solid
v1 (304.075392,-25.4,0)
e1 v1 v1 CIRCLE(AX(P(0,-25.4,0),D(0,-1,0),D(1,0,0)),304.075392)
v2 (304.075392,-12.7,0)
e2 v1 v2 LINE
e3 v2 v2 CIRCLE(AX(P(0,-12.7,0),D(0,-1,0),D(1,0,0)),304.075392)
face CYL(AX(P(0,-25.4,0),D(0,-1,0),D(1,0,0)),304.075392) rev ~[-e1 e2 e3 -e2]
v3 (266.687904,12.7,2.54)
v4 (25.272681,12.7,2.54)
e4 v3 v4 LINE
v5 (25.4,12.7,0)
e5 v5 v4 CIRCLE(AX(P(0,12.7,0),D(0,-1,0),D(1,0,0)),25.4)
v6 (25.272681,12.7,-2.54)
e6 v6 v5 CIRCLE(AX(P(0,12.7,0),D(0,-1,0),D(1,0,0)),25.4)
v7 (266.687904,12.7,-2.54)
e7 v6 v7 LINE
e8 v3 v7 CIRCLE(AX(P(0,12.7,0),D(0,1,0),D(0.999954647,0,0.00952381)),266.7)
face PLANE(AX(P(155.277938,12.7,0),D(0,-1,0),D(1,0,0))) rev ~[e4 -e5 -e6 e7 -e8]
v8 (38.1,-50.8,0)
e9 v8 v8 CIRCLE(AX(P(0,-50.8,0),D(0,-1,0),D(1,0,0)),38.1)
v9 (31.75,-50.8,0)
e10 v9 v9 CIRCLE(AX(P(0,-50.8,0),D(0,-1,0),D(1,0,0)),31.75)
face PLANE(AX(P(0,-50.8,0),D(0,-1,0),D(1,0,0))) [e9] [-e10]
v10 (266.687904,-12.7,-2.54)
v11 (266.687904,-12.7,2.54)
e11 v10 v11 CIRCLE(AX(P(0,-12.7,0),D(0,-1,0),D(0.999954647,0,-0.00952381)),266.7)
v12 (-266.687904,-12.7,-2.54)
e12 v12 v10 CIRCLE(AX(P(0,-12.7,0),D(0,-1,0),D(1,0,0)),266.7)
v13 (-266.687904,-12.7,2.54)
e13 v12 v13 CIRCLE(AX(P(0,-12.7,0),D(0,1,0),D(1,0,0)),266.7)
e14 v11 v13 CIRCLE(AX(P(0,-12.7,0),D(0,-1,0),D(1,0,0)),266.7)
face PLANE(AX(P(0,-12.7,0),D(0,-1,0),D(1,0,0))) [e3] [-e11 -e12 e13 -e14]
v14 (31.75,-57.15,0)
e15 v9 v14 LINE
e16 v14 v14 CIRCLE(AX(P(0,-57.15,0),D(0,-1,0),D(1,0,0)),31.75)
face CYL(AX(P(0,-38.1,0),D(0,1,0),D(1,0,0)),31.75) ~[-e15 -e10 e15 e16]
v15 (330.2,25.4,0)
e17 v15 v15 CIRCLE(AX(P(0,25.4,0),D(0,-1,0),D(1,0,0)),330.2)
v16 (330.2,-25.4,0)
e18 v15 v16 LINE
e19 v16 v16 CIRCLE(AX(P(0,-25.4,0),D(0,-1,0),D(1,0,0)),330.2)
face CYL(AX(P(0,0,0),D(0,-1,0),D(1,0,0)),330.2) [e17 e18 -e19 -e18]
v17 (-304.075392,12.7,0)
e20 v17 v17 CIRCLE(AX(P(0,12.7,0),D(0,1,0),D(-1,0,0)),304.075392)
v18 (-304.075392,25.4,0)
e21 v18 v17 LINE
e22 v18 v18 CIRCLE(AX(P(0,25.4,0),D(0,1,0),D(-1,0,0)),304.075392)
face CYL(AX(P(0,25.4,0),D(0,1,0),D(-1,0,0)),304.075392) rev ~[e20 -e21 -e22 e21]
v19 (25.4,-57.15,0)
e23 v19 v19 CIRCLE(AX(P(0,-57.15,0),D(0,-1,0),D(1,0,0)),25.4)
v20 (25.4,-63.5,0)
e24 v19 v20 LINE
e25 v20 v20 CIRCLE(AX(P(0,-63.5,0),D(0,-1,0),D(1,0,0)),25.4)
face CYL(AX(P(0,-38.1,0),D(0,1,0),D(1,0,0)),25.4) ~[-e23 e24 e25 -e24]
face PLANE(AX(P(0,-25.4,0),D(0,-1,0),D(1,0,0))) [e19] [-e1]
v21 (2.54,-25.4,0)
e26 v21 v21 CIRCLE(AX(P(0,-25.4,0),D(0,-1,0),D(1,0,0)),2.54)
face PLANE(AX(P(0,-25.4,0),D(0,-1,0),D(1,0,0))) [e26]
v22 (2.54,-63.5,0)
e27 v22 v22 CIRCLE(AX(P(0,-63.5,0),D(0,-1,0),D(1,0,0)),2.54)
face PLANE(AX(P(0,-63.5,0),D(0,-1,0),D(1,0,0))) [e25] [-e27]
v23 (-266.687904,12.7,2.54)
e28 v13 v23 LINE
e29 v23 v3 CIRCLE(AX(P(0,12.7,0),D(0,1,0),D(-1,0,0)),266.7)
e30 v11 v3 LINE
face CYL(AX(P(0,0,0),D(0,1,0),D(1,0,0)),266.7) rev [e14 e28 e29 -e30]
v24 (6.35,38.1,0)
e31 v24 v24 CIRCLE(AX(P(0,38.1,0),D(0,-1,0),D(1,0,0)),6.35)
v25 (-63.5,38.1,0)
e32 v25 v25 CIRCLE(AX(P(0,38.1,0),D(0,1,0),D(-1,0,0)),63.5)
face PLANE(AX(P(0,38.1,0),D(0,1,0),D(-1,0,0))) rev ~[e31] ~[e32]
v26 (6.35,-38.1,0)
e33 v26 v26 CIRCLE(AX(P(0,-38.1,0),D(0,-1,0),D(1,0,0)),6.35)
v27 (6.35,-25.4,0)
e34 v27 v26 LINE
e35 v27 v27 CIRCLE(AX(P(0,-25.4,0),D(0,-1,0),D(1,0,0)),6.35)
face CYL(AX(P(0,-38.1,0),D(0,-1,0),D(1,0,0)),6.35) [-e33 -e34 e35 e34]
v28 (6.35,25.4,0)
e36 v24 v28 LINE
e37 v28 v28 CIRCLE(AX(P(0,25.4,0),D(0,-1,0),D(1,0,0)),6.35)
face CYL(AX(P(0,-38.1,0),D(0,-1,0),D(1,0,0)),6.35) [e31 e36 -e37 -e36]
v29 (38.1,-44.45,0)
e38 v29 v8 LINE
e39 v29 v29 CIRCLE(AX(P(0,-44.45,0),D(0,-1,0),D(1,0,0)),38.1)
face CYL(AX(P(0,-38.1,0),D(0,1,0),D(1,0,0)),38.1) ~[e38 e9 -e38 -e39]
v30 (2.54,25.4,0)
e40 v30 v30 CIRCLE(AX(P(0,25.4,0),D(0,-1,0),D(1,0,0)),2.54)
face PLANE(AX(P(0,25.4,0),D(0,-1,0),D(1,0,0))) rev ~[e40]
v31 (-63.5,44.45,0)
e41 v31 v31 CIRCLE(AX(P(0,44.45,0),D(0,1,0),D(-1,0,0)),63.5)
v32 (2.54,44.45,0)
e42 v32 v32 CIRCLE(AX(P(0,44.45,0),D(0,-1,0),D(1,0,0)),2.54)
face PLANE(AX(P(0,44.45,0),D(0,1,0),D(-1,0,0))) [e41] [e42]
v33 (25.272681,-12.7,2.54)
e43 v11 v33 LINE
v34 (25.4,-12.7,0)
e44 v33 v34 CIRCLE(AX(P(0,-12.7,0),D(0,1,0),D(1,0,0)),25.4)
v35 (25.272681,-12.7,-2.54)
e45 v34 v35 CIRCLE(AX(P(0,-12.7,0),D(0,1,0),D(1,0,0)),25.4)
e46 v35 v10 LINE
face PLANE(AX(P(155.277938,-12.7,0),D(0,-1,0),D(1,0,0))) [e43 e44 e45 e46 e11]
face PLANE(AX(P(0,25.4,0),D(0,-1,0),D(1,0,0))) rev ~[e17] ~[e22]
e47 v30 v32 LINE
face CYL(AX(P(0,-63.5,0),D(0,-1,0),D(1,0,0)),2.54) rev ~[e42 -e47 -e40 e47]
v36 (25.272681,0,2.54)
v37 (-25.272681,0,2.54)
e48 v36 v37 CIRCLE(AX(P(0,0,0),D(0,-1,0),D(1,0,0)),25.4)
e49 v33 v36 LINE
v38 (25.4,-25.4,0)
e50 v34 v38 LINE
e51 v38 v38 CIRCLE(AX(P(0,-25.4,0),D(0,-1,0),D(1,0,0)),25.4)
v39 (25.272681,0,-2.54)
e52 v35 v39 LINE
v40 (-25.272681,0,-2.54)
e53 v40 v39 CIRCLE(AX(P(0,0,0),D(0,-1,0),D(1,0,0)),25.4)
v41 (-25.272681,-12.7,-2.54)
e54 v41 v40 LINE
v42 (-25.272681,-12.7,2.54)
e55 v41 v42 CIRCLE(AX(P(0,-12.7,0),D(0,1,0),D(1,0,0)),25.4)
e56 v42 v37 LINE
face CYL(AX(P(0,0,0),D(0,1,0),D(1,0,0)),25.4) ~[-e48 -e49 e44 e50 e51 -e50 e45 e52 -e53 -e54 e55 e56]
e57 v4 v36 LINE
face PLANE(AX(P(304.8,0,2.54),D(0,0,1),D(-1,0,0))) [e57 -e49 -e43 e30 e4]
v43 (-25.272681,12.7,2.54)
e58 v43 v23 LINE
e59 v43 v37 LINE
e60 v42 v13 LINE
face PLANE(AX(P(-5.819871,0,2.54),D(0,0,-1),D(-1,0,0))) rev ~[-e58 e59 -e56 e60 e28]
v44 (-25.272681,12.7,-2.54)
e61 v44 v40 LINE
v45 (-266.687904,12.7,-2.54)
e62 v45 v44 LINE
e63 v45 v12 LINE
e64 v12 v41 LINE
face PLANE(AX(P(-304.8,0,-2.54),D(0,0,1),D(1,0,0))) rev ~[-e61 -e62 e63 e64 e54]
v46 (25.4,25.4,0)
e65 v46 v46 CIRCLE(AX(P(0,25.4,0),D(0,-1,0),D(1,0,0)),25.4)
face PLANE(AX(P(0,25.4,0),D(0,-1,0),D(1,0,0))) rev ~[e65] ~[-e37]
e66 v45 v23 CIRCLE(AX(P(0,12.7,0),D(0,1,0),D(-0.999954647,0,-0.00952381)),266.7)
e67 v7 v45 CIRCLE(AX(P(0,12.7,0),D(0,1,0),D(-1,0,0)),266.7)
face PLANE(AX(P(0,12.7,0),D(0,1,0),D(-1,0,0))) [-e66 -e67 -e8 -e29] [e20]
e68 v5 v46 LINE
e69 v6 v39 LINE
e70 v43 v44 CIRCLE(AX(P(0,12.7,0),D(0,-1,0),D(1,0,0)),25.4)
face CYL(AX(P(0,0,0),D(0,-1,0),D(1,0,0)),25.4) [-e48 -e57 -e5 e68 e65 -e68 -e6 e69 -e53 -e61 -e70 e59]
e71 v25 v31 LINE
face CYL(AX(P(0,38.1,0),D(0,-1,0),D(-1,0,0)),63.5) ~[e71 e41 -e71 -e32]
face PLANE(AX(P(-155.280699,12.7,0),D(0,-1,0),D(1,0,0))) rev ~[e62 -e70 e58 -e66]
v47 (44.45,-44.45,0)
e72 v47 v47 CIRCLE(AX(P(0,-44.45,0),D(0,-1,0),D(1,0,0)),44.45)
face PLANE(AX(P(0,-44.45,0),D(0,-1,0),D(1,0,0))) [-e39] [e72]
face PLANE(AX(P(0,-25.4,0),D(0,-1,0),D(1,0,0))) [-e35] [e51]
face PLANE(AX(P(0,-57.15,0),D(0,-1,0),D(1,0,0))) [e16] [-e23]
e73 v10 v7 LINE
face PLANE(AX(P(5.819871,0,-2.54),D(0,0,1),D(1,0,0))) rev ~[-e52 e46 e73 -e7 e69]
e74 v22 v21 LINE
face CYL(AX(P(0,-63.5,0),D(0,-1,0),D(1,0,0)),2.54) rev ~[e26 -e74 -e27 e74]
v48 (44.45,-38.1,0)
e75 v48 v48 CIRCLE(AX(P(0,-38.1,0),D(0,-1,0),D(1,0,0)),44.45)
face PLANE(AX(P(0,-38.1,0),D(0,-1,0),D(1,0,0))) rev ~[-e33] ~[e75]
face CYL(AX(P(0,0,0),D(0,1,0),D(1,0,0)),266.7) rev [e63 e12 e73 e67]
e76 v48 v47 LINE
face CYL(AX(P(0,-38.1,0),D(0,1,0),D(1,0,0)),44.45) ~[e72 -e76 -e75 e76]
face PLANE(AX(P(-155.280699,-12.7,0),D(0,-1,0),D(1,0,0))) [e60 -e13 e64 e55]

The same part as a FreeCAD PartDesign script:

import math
import FreeCAD as App
import Part
import Sketcher
Q = App.Units.Quantity

doc = App.newDocument("Part")
body = doc.addObject("PartDesign::Body", "Body")

# Sketch on XZ plane
sketch1 = body.newObject("Sketcher::SketchObject", "Sketch")
sketch1.AttachmentSupport = (doc.getObject("XZ_Plane"), [""])
sketch1.MapMode = "FlatFace"
sketch1.addGeometry(Part.Circle(App.Vector(0, 0, 0), App.Vector(0, 0, 1), 330), False)
sketch1.addGeometry(Part.Circle(App.Vector(0, 0, 0), App.Vector(0, 0, 1), 267), False)
sketch1.addConstraint(Sketcher.Constraint("Coincident", 0, 3, -1, 1))
sketch1.addConstraint(Sketcher.Constraint("Coincident", 1, 3, -1, 1))
sketch1.addConstraint(Sketcher.Constraint("Diameter", 0, Q("26 in")))
sketch1.addConstraint(Sketcher.Constraint("Diameter", 1, Q("21 in")))
pad1 = body.newObject("PartDesign::Pad", "Pad")
pad1.Profile = sketch1
pad1.Type = "TwoLengths"
pad1.Length = Q("1 in")
pad1.Length2 = Q("1 in")
body2 = doc.addObject("PartDesign::Body", "Body001")

# Sketch on XZ plane
sketch2 = body2.newObject("Sketcher::SketchObject", "Sketch001")
sketch2.AttachmentSupport = (doc.getObject("XZ_Plane001"), [""])
sketch2.MapMode = "FlatFace"
sketch2.AttachmentOffset = App.Placement(App.Vector(0, 0, 1.5 * 25.4), App.Rotation())
sketch2.addGeometry(Part.Circle(App.Vector(0, 0, 0), App.Vector(0, 0, 1), 44), False)
sketch2.addGeometry(Part.Circle(App.Vector(0, 0, 0), App.Vector(0, 0, 1), 38), False)
sketch2.addConstraint(Sketcher.Constraint("Coincident", 0, 3, -1, 1))
sketch2.addConstraint(Sketcher.Constraint("Coincident", 1, 3, -1, 1))
sketch2.addConstraint(Sketcher.Constraint("Diameter", 1, Q("3 in")))
sketch2.addConstraint(Sketcher.Constraint("Diameter", 0, Q("3.5 in")))
pad2 = body2.newObject("PartDesign::Pad", "Pad001")
pad2.Profile = sketch2
pad2.Length = Q("0.25 in")

# Sketch on XZ plane
sketch3 = body2.newObject("Sketcher::SketchObject", "Sketch002")
sketch3.AttachmentSupport = (doc.getObject("XZ_Plane001"), [""])
sketch3.MapMode = "FlatFace"
sketch3.AttachmentOffset = App.Placement(App.Vector(0, 0, 1.5 * 25.4), App.Rotation())
sketch3.addGeometry(Part.Circle(App.Vector(0, 0, 0), App.Vector(0, 0, 1), 38), False)
sketch3.addGeometry(Part.Circle(App.Vector(0, 0, 0), App.Vector(0, 0, 1), 32), False)
sketch3.addConstraint(Sketcher.Constraint("Coincident", 0, 3, -1, 1))
sketch3.addConstraint(Sketcher.Constraint("Coincident", 1, 3, -1, 1))
sketch3.addConstraint(Sketcher.Constraint("Diameter", 0, Q("3 in")))
sketch3.addConstraint(Sketcher.Constraint("Diameter", 1, Q("2.5 in")))
pad3 = body2.newObject("PartDesign::Pad", "Pad002")
pad3.Profile = sketch3
pad3.Length = Q("0.5 in")

# Sketch on XZ plane
sketch4 = body2.newObject("Sketcher::SketchObject", "Sketch003")
sketch4.AttachmentSupport = (doc.getObject("XZ_Plane001"), [""])
sketch4.MapMode = "FlatFace"
sketch4.AttachmentOffset = App.Placement(App.Vector(0, 0, 1.5 * 25.4), App.Rotation())
sketch4.addGeometry(Part.Circle(App.Vector(0, 0, 0), App.Vector(0, 0, 1), 32), False)
sketch4.addGeometry(Part.Circle(App.Vector(0, 0, 0), App.Vector(0, 0, 1), 25), False)
sketch4.addConstraint(Sketcher.Constraint("Coincident", 0, 3, -1, 1))
sketch4.addConstraint(Sketcher.Constraint("Coincident", 1, 3, -1, 1))
sketch4.addConstraint(Sketcher.Constraint("Diameter", 1, Q("2 in")))
sketch4.addConstraint(Sketcher.Constraint("Diameter", 0, Q("2.5 in")))
pad4 = body2.newObject("PartDesign::Pad", "Pad003")
pad4.Profile = sketch4
pad4.Length = Q("0.75 in")

# Sketch on XZ plane
sketch5 = body2.newObject("Sketcher::SketchObject", "Sketch004")
sketch5.AttachmentSupport = (doc.getObject("XZ_Plane001"), [""])
sketch5.MapMode = "FlatFace"
sketch5.AttachmentOffset = App.Placement(App.Vector(0, 0, 1.5 * 25.4), App.Rotation())
sketch5.addGeometry(Part.Circle(App.Vector(0, 0, 0), App.Vector(0, 0, 1), 25), False)
sketch5.addGeometry(Part.Circle(App.Vector(0, 0, 0), App.Vector(0, 0, 1), 19), False)
sketch5.addConstraint(Sketcher.Constraint("Coincident", 0, 3, -1, 1))
sketch5.addConstraint(Sketcher.Constraint("Coincident", 1, 3, -1, 1))
sketch5.addConstraint(Sketcher.Constraint("Diameter", 0, Q("2 in")))
sketch5.addConstraint(Sketcher.Constraint("Diameter", 1, Q("1.5 in")))
pad5 = body2.newObject("PartDesign::Pad", "Pad004")
pad5.Profile = sketch5
pad5.Length = Q("1 in")
body3 = doc.addObject("PartDesign::Body", "Body002")

# Sketch on XZ plane
sketch6 = body3.newObject("Sketcher::SketchObject", "Sketch005")
sketch6.AttachmentSupport = (doc.getObject("XZ_Plane002"), [""])
sketch6.MapMode = "FlatFace"
sketch6.AttachmentOffset = App.Placement(App.Vector(0, 0, -1.5 * 25.4), App.Rotation())
sketch6.addGeometry(Part.Circle(App.Vector(0, 0, 0), App.Vector(0, 0, 1), 64), False)
sketch6.addConstraint(Sketcher.Constraint("Coincident", 0, 3, -1, 1))
sketch6.addConstraint(Sketcher.Constraint("Diameter", 0, Q("5 in")))
pad6 = body3.newObject("PartDesign::Pad", "Pad005")
pad6.Profile = sketch6
pad6.Length = Q("0.25 in")
pad6.Reversed = True

# Sketch on XZ plane
sketch7 = body3.newObject("Sketcher::SketchObject", "Sketch006")
sketch7.AttachmentSupport = (doc.getObject("XZ_Plane002"), [""])
sketch7.MapMode = "FlatFace"
sketch7.AttachmentOffset = App.Placement(App.Vector(0, 0, 1.5 * 25.4), App.Rotation())
sketch7.addGeometry(Part.Circle(App.Vector(0, 0, 0), App.Vector(0, 0, 1), 6), False)
sketch7.addConstraint(Sketcher.Constraint("Coincident", 0, 3, -1, 1))
sketch7.addConstraint(Sketcher.Constraint("Diameter", 0, Q("0.5 in")))
pad7 = body3.newObject("PartDesign::Pad", "Pad006")
pad7.Profile = sketch7
pad7.Type = "TwoLengths"
pad7.Length = Q("1 in")
pad7.Length2 = Q("3 in")
body2.AllowCompound = True
doc.recompute()

boolean = body2.newObject("PartDesign::Boolean", "Boolean")
boolean.Type = "Fuse"
boolean.addObjects([body3])

# Sketch on XZ plane
sketch8 = body2.newObject("Sketcher::SketchObject", "Sketch007")
sketch8.AttachmentSupport = (doc.getObject("XZ_Plane001"), [""])
sketch8.MapMode = "FlatFace"
sketch8.AttachmentOffset = App.Placement(App.Vector(0, 0, 2.5 * 25.4), App.Rotation())
sketch8.addGeometry(Part.Circle(App.Vector(0, 0, 0), App.Vector(0, 0, 1), 19.1), False)
sketch8.addGeometry(Part.Circle(App.Vector(0, 0, 0), App.Vector(0, 0, 1), 2.5), False)
sketch8.addConstraint(Sketcher.Constraint("Coincident", 0, 3, -1, 1))
sketch8.addConstraint(Sketcher.Constraint("Coincident", 1, 3, -1, 1))
sketch8.addConstraint(Sketcher.Constraint("Diameter", 0, Q("1.5 in")))
sketch8.addConstraint(Sketcher.Constraint("Diameter", 1, Q("0.2 in")))
pad8 = body2.newObject("PartDesign::Pad", "Pad007")
pad8.Profile = sketch8
pad8.Length = Q("1 in")
pad8.Reversed = True

# Sketch on XZ plane
sketch9 = body2.newObject("Sketcher::SketchObject", "Sketch008")
sketch9.AttachmentSupport = (doc.getObject("XZ_Plane001"), [""])
sketch9.MapMode = "FlatFace"
sketch9.AttachmentOffset = App.Placement(App.Vector(0, 0, 2.5 * 25.4), App.Rotation())
sketch9.addGeometry(Part.Circle(App.Vector(0, 0, 0), App.Vector(0, 0, 1), 2.5), False)
sketch9.addConstraint(Sketcher.Constraint("Coincident", 0, 3, -1, 1))
sketch9.addConstraint(Sketcher.Constraint("Diameter", 0, Q("0.2 in")))
pocket1 = body2.newObject("PartDesign::Pocket", "Pocket")
pocket1.Profile = sketch9
pocket1.Type = "ThroughAll"
body.AllowCompound = True
doc.recompute()

boolean2 = body.newObject("PartDesign::Boolean", "Boolean001")
boolean2.Type = "Fuse"
boolean2.addObjects([body2])

# Sketch on XZ plane
sketch10 = body.newObject("Sketcher::SketchObject", "Sketch009")
sketch10.AttachmentSupport = (doc.getObject("XZ_Plane"), [""])
sketch10.MapMode = "FlatFace"
sketch10.addGeometry(Part.LineSegment(App.Vector(304.8, 2.5, 0), App.Vector(5.8, 2.5, 0)), False)
sketch10.addGeometry(Part.ArcOfCircle(Part.Circle(App.Vector(0, 0, 0), App.Vector(0, 0, 1), 6.4), math.radians(0), math.radians(24)), False)
sketch10.addGeometry(Part.ArcOfCircle(Part.Circle(App.Vector(0, 0, 0), App.Vector(0, 0, 1), 6.4), math.radians(-24), math.radians(0)), False)
sketch10.addGeometry(Part.LineSegment(App.Vector(5.8, -2.5, 0), App.Vector(304.8, -2.5, 0)), False)
sketch10.addGeometry(Part.LineSegment(App.Vector(304.8, -2.5, 0), App.Vector(304.8, 2.5, 0)), False)
sketch10.addGeometry(Part.ArcOfCircle(Part.Circle(App.Vector(0, 0, 0), App.Vector(0, 0, 1), 6.3), math.radians(156), math.radians(204)), False)
sketch10.addGeometry(Part.LineSegment(App.Vector(-5.8, 2.5, 0), App.Vector(-304.8, 2.5, 0)), False)
sketch10.addGeometry(Part.LineSegment(App.Vector(-304.8, 2.5, 0), App.Vector(-304.8, -2.5, 0)), False)
sketch10.addGeometry(Part.LineSegment(App.Vector(-304.8, -2.5, 0), App.Vector(-5.8, -2.5, 0)), False)
sketch10.addConstraint(Sketcher.Constraint("Coincident", 0, 2, 1, 2))
sketch10.addConstraint(Sketcher.Constraint("Tangent", 1, 1, 2, 2))
sketch10.addConstraint(Sketcher.Constraint("Coincident", 2, 1, 3, 1))
sketch10.addConstraint(Sketcher.Constraint("Coincident", 3, 2, 4, 1))
sketch10.addConstraint(Sketcher.Constraint("Coincident", 4, 2, 0, 1))
sketch10.addConstraint(Sketcher.Constraint("Coincident", 5, 1, 6, 1))
sketch10.addConstraint(Sketcher.Constraint("Coincident", 6, 2, 7, 1))
sketch10.addConstraint(Sketcher.Constraint("Coincident", 7, 2, 8, 1))
sketch10.addConstraint(Sketcher.Constraint("Coincident", 8, 2, 5, 2))
sketch10.addConstraint(Sketcher.Constraint("Horizontal", 0))
sketch10.addConstraint(Sketcher.Constraint("Horizontal", 3))
sketch10.addConstraint(Sketcher.Constraint("Vertical", 4))
sketch10.addConstraint(Sketcher.Constraint("Horizontal", 6))
sketch10.addConstraint(Sketcher.Constraint("Vertical", 7))
sketch10.addConstraint(Sketcher.Constraint("Horizontal", 8))
sketch10.addConstraint(Sketcher.Constraint("Coincident", 1, 3, -1, 1))
sketch10.addConstraint(Sketcher.Constraint("Coincident", 5, 3, -1, 1))
sketch10.addConstraint(Sketcher.Constraint("Equal", 1, 2))
sketch10.addConstraint(Sketcher.Constraint("Equal", 2, 5))
sketch10.addConstraint(Sketcher.Constraint("Symmetric", 3, 2, 6, 2, -1, 1))
sketch10.addConstraint(Sketcher.Constraint("PointOnObject", 1, 1, -1))
sketch10.addConstraint(Sketcher.Constraint("Horizontal", 4, 2, 5, 1))
sketch10.addConstraint(Sketcher.Constraint("Horizontal", 3, 2, 7, 2))
sketch10.addConstraint(Sketcher.Constraint("Radius", 1, Q("0.25 in")))
sketch10.addConstraint(Sketcher.Constraint("DistanceY", 4, 1, 4, 2, Q("0.2 in")))
sketch10.addConstraint(Sketcher.Constraint("DistanceX", -1, 1, 3, 2, Q("12 in")))
pad9 = body.newObject("PartDesign::Pad", "Pad008")
pad9.Profile = sketch10
pad9.Type = "TwoLengths"
pad9.Length = Q("0.5 in")
pad9.Length2 = Q("0.5 in")

# Sketch on XZ plane
sketch11 = body.newObject("Sketcher::SketchObject", "Sketch010")
sketch11.AttachmentSupport = (doc.getObject("XZ_Plane"), [""])
sketch11.MapMode = "FlatFace"
sketch11.AttachmentOffset = App.Placement(App.Vector(0, 0, 2.5 * 25.4), App.Rotation())
sketch11.addGeometry(Part.Circle(App.Vector(0, 0, 0), App.Vector(0, 0, 1), 2.5), False)
sketch11.addConstraint(Sketcher.Constraint("Coincident", 0, 3, -1, 1))
sketch11.addConstraint(Sketcher.Constraint("Diameter", 0, Q("0.2 in")))
pocket2 = body.newObject("PartDesign::Pocket", "Pocket001")
pocket2.Profile = sketch11
pocket2.Type = "ThroughAll"

# Sketch on XZ plane
sketch12 = body.newObject("Sketcher::SketchObject", "Sketch011")
sketch12.AttachmentSupport = (doc.getObject("XZ_Plane"), [""])
sketch12.MapMode = "FlatFace"
sketch12.addGeometry(Part.Circle(App.Vector(0, 0, 0), App.Vector(0, 0, 1), 25), False)
sketch12.addConstraint(Sketcher.Constraint("Coincident", 0, 3, -1, 1))
sketch12.addConstraint(Sketcher.Constraint("Diameter", 0, Q("2 in")))
pad10 = body.newObject("PartDesign::Pad", "Pad009")
pad10.Profile = sketch12
pad10.Type = "TwoLengths"
pad10.Length = Q("1 in")
pad10.Length2 = Q("1 in")

# Sketch on XZ plane
sketch13 = body.newObject("Sketcher::SketchObject", "Sketch012")
sketch13.AttachmentSupport = (doc.getObject("XZ_Plane"), [""])
sketch13.MapMode = "FlatFace"
sketch13.AttachmentOffset = App.Placement(App.Vector(0, 0, 1 * 25.4), App.Rotation())
sketch13.addGeometry(Part.Circle(App.Vector(0, 0, 0), App.Vector(0, 0, 1), 304), False)
sketch13.addGeometry(Part.Circle(App.Vector(0, 0, 0), App.Vector(0, 0, 1), 267), False)
sketch13.addConstraint(Sketcher.Constraint("Coincident", 0, 3, -1, 1))
sketch13.addConstraint(Sketcher.Constraint("Coincident", 1, 3, -1, 1))
sketch13.addConstraint(Sketcher.Constraint("Diameter", 1, Q("21 in")))
sketch13.addConstraint(Sketcher.Constraint("Diameter", 0, 608.150785))
pocket3 = body.newObject("PartDesign::Pocket", "Pocket002")
pocket3.Profile = sketch13
pocket3.Length = Q("0.5 in")

# Sketch on XZ plane
sketch14 = body.newObject("Sketcher::SketchObject", "Sketch013")
sketch14.AttachmentSupport = (doc.getObject("XZ_Plane"), [""])
sketch14.MapMode = "FlatFace"
sketch14.AttachmentOffset = App.Placement(App.Vector(0, 0, -1 * 25.4), App.Rotation())
sketch14.addGeometry(Part.Circle(App.Vector(0, 0, 0), App.Vector(0, 0, 1), 304), False)
sketch14.addGeometry(Part.Circle(App.Vector(0, 0, 0), App.Vector(0, 0, 1), 267), False)
sketch14.addConstraint(Sketcher.Constraint("Coincident", 0, 3, -1, 1))
sketch14.addConstraint(Sketcher.Constraint("Coincident", 1, 3, -1, 1))
sketch14.addConstraint(Sketcher.Constraint("Diameter", 1, Q("21 in")))
sketch14.addConstraint(Sketcher.Constraint("Diameter", 0, 608.150785))
pocket4 = body.newObject("PartDesign::Pocket", "Pocket003")
pocket4.Profile = sketch14
pocket4.Length = Q("0.5 in")
pocket4.Reversed = True

doc.recompute()
